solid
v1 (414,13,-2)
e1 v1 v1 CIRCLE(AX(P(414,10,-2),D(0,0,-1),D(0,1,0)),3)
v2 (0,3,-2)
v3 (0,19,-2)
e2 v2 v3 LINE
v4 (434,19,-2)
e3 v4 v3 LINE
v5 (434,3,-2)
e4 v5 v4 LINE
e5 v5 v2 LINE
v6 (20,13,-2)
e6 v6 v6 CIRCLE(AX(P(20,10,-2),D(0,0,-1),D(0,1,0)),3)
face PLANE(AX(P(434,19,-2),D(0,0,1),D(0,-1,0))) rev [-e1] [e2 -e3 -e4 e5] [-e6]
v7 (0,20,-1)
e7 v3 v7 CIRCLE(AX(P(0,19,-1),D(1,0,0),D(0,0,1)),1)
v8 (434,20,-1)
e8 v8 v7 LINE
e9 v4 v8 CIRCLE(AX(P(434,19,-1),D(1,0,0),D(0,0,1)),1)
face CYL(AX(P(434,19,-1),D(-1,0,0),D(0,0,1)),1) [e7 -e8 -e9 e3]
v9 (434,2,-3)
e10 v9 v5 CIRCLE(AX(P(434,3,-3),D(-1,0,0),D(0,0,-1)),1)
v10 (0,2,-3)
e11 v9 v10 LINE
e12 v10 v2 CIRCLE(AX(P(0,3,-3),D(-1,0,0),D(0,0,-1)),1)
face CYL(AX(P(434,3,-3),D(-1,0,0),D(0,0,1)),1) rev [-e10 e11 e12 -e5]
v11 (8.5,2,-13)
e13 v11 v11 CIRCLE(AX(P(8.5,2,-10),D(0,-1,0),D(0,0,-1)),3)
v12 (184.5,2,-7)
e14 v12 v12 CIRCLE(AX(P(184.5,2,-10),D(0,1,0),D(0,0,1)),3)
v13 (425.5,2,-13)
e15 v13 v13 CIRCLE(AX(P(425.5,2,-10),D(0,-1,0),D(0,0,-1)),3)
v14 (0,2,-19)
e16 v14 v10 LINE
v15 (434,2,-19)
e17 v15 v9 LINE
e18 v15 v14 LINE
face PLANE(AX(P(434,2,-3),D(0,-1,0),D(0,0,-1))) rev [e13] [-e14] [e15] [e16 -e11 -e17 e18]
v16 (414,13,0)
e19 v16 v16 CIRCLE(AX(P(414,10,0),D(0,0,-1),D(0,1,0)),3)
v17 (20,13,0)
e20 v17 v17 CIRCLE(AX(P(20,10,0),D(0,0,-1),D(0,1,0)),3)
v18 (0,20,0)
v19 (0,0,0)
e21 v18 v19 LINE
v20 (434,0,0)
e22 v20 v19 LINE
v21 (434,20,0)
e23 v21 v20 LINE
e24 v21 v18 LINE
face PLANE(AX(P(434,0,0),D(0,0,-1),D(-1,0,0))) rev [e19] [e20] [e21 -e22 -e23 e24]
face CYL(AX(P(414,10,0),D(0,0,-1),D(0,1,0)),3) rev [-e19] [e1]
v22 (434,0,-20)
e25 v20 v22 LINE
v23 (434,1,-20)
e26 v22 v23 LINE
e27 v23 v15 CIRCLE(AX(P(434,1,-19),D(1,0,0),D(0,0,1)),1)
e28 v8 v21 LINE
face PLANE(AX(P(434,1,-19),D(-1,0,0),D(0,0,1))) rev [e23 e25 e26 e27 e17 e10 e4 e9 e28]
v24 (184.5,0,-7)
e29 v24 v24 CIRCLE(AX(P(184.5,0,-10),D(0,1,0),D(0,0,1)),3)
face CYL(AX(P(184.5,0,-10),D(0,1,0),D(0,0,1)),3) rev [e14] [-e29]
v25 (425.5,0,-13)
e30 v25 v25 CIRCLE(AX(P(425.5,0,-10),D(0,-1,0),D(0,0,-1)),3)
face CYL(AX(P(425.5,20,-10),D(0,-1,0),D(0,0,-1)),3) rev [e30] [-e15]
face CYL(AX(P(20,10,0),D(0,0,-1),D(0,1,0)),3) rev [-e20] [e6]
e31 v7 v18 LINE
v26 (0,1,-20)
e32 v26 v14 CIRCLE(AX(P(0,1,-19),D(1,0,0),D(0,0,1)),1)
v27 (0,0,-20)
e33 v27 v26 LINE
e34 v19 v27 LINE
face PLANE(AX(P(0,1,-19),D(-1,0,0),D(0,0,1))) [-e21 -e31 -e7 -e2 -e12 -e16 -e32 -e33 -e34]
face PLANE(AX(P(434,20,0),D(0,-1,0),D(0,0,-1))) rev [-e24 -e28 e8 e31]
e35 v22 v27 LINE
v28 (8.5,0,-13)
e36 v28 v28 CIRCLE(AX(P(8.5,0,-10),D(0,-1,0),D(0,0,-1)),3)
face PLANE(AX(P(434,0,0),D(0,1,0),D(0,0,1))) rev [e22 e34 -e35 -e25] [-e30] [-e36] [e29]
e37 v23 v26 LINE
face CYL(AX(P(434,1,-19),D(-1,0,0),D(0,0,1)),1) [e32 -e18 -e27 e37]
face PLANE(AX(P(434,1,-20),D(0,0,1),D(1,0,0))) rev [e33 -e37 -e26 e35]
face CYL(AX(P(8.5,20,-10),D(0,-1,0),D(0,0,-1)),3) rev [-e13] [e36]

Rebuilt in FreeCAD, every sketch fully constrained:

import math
import FreeCAD as App
import Part
import Sketcher
from FreeCAD import Vector

doc = App.newDocument("Part")
params = doc.addObject("Spreadsheet::Sheet", "Params")
for row, (alias, value) in enumerate([
    ("sketch1_radius", "1 mm"),
    ("sketch1_width", "20 mm"),
    ("sketch1_width2", "1 mm"),
    ("pad1_length", "434 mm"),
    ("sketch2_diameter", "6 mm"),
    ("sketch3_diameter", "6 mm"),
    ("sketch4_diameter", "6 mm"),
    ("pocket3_length", "2 mm"),
], start=1):
    params.set(f"A{row}", alias)
    params.set(f"B{row}", "=" + value)
    params.setAlias(f"B{row}", alias)

body = doc.addObject("PartDesign::Body", "Body")

sketch1 = body.newObject("Sketcher::SketchObject", "Sketch")
sketch1.AttachmentSupport = (doc.getObject("YZ_Plane"), [""])
sketch1.MapMode = "FlatFace"
sketch1.addGeometry([
    Part.LineSegment(Vector(20, 0, 0), Vector(0, 0, 0)),
    Part.LineSegment(Vector(0, 0, 0), Vector(0, -20, 0)),
    Part.LineSegment(Vector(0, -20, 0), Vector(1, -20, 0)),
    Part.ArcOfCircle(Part.Circle(Vector(1, -19, 0), Vector(0, 0, 1), 1), math.radians(-90), math.radians(0)),
    Part.LineSegment(Vector(2, -19, 0), Vector(2, -3, 0)),
    Part.ArcOfCircle(Part.Circle(Vector(3, -3, 0), Vector(0, 0, 1), 1), math.radians(90), math.radians(180)),
    Part.LineSegment(Vector(3, -2, 0), Vector(19, -2, 0)),
    Part.ArcOfCircle(Part.Circle(Vector(19, -1, 0), Vector(0, 0, 1), 1), math.radians(-90), math.radians(0)),
    Part.LineSegment(Vector(20, -1, 0), Vector(20, 0, 0)),
], False)
sketch1.addConstraint([
    Sketcher.Constraint("Coincident", 0, 2, 1, 1),
    Sketcher.Constraint("Coincident", 1, 2, 2, 1),
    Sketcher.Constraint("Tangent", 2, 2, 3, 1),
    Sketcher.Constraint("Tangent", 3, 2, 4, 1),
    Sketcher.Constraint("Tangent", 4, 2, 5, 2),
    Sketcher.Constraint("Tangent", 5, 1, 6, 1),
    Sketcher.Constraint("Tangent", 6, 2, 7, 1),
    Sketcher.Constraint("Tangent", 7, 2, 8, 1),
    Sketcher.Constraint("Coincident", 8, 2, 0, 1),
    Sketcher.Constraint("Horizontal", 0),
    Sketcher.Constraint("Vertical", 1),
    Sketcher.Constraint("Horizontal", 2),
    Sketcher.Constraint("Vertical", 4),
    Sketcher.Constraint("Horizontal", 6),
    Sketcher.Constraint("Vertical", 8),
    Sketcher.Constraint("Coincident", 0, 2, -1, 1),
    Sketcher.Constraint("Equal", 3, 5),
    Sketcher.Constraint("Equal", 5, 7),
    Sketcher.Constraint("Equal", 0, 1),
    Sketcher.Constraint("Equal", 6, 4),
    Sketcher.Constraint("Radius", 3, 1.0),
    Sketcher.Constraint("DistanceX", 0, 2, 0, 1, 20.0),
    Sketcher.Constraint("DistanceX", 2, 1, 2, 2, 1.0),
])
sketch1.setExpression("Constraints[20]", "Params.sketch1_radius")
sketch1.setExpression("Constraints[21]", "Params.sketch1_width")
sketch1.setExpression("Constraints[22]", "Params.sketch1_width2")
pad1 = body.newObject("PartDesign::Pad", "Pad")
pad1.Profile = sketch1
pad1.setExpression("Length", "Params.pad1_length")

sketch2 = body.newObject("Sketcher::SketchObject", "Sketch001")
sketch2.AttachmentSupport = (doc.getObject("XZ_Plane"), [""])
sketch2.MapMode = "FlatFace"
sketch2.addGeometry([
    Part.Circle(Vector(425.5, -10, 0), Vector(0, 0, 1), 3),
    Part.Circle(Vector(8.5, -10, 0), Vector(0, 0, 1), 3),
], False)
sketch2.addConstraint([
    Sketcher.Constraint("Equal", 0, 1),
    Sketcher.Constraint("Horizontal", 0, 3, 1, 3),
    Sketcher.Constraint("Diameter", 0, 6.0),
    Sketcher.Constraint("DistanceY", 0, 3, -1, 1, 10.0),
    Sketcher.Constraint("DistanceX", 1, 3, 0, 3, 417.0),
    Sketcher.Constraint("DistanceX", -1, 1, 0, 3, 425.5),
])
sketch2.setExpression("Constraints[2]", "Params.sketch2_diameter")
pocket1 = body.newObject("PartDesign::Pocket", "Pocket")
pocket1.Profile = sketch2
pocket1.Type = "ThroughAll"

sketch3 = body.newObject("Sketcher::SketchObject", "Sketch002")
sketch3.AttachmentSupport = (doc.getObject("XY_Plane"), [""])
sketch3.MapMode = "FlatFace"
sketch3.AttachmentOffset = App.Placement(Vector(0, 0, -2), App.Rotation())
sketch3.addGeometry([
    Part.Circle(Vector(414, 10, 0), Vector(0, 0, 1), 3),
    Part.Circle(Vector(20, 10, 0), Vector(0, 0, 1), 3),
], False)
sketch3.addConstraint([
    Sketcher.Constraint("Equal", 0, 1),
    Sketcher.Constraint("Horizontal", 0, 3, 1, 3),
    Sketcher.Constraint("Diameter", 0, 6.0),
    Sketcher.Constraint("DistanceX", -1, 1, 0, 3, 414.0),
    Sketcher.Constraint("DistanceY", -1, 1, 0, 3, 10.0),
    Sketcher.Constraint("DistanceX", -1, 1, 1, 3, 20.0),
])
sketch3.setExpression("Constraints[2]", "Params.sketch3_diameter")
pocket2 = body.newObject("PartDesign::Pocket", "Pocket001")
pocket2.Profile = sketch3
pocket2.Type = "ThroughAll"
pocket2.Reversed = True

sketch4 = body.newObject("Sketcher::SketchObject", "Sketch003")
sketch4.AttachmentSupport = (doc.getObject("XZ_Plane"), [""])
sketch4.MapMode = "FlatFace"
sketch4.AttachmentOffset = App.Placement(Vector(0, 0, -2), App.Rotation())
sketch4.addGeometry(Part.Circle(Vector(184.5, -10, 0), Vector(0, 0, 1), 3), False)
sketch4.addConstraint([
    Sketcher.Constraint("Diameter", 0, 6.0),
    Sketcher.Constraint("DistanceY", 0, 3, -1, 1, 10.0),
    Sketcher.Constraint("DistanceX", -1, 1, 0, 3, 184.5),
])
sketch4.setExpression("Constraints[0]", "Params.sketch4_diameter")
pocket3 = body.newObject("PartDesign::Pocket", "Pocket002")
pocket3.Profile = sketch4
pocket3.setExpression("Length", "Params.pocket3_length")
pocket3.Reversed = True

doc.recompute()
